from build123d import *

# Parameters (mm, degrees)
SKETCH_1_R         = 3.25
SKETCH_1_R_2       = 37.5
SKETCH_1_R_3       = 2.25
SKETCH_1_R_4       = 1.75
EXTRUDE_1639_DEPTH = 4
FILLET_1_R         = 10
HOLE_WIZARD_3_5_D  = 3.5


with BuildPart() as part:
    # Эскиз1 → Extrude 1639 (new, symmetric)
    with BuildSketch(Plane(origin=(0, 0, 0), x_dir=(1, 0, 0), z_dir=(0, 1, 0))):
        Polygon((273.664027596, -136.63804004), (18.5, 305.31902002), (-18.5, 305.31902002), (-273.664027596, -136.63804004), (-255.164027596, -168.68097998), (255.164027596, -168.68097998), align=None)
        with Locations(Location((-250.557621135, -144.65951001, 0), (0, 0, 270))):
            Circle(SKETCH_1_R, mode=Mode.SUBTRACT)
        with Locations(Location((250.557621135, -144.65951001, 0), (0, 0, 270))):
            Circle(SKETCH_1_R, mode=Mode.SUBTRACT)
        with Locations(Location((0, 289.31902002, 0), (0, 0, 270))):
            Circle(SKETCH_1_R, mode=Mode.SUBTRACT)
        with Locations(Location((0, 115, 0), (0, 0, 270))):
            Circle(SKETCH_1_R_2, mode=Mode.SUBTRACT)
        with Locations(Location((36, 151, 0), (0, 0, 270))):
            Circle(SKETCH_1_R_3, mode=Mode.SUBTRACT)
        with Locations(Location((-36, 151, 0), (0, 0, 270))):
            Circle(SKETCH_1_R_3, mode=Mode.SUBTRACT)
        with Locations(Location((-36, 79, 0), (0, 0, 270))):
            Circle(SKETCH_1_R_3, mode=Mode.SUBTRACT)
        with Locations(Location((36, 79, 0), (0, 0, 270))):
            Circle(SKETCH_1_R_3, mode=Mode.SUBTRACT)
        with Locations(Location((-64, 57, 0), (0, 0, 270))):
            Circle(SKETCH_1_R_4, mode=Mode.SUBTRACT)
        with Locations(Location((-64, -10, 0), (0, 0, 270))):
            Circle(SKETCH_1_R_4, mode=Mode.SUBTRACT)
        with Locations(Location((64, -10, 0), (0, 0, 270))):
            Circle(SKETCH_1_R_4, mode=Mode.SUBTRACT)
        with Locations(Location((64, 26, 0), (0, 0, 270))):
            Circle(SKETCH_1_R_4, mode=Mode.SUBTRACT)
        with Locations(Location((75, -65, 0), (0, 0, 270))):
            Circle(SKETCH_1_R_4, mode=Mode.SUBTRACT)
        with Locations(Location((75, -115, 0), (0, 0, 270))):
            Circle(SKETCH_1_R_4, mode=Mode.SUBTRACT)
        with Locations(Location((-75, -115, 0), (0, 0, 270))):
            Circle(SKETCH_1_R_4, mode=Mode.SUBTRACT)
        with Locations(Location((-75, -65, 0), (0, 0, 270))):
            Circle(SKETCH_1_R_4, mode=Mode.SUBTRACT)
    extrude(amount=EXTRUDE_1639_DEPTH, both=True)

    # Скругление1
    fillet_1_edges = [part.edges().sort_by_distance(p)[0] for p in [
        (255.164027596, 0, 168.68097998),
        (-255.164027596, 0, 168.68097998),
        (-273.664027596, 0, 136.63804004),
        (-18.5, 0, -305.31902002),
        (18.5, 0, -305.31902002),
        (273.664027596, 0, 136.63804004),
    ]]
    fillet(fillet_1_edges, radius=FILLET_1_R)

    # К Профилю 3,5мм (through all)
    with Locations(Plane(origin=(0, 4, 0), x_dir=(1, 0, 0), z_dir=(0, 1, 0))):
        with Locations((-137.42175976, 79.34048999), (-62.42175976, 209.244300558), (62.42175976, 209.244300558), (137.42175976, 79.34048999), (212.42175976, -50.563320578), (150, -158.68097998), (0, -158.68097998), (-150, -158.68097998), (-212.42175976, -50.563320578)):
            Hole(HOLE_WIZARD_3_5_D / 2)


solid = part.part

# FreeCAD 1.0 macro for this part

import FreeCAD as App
import Part
import Sketcher
from FreeCAD import Vector
Q = App.Units.Quantity


def edges_at(feature, points):
    """Names of the edges that pass closest to the given points."""
    edges = feature.Shape.Edges
    near = lambda p: min(range(len(edges)), key=lambda i: edges[i].distToShape(Part.Vertex(*p))[0])
    return sorted({f"Edge{near(p) + 1}" for p in points})


def add_polygon(sketch, points):
    """Adds a closed chain of lines whose ends are joined by coincident constraints."""
    first, n = sketch.GeometryCount, len(points)
    for a, b in zip(points, points[1:] + points[:1]):
        sketch.addGeometry(Part.LineSegment(App.Vector(*a, 0), App.Vector(*b, 0)), False)
    for i in range(n):
        sketch.addConstraint(Sketcher.Constraint("Coincident", first + i, 2, first + (i + 1) % n, 1))

doc = App.newDocument("Part")
body = doc.addObject("PartDesign::Body", "Body")

# Sketch on XZ plane
sketch1 = body.newObject("Sketcher::SketchObject", "Sketch")
sketch1.AttachmentSupport = (doc.getObject("XZ_Plane"), [""])
sketch1.MapMode = "FlatFace"
add_polygon(sketch1, [(273.7, 136.6), (18.5, -305.3), (-18.5, -305.3), (-273.7, 136.6), (-255.2, 168.7), (255.2, 168.7)])  # lines 0-5
sketch1.addGeometry(Part.Circle(Vector(-250.6, 144.7, 0), Vector(0, 0, 1), 3.2), False)  # 6
sketch1.addGeometry(Part.Circle(Vector(-75, 115, 0), Vector(0, 0, 1), 1.8), False)  # 7
sketch1.addGeometry(Part.Circle(Vector(-75, 65, 0), Vector(0, 0, 1), 1.8), False)  # 8
sketch1.addGeometry(Part.Circle(Vector(-64, 10, 0), Vector(0, 0, 1), 1.8), False)  # 9
sketch1.addGeometry(Part.Circle(Vector(-64, -57, 0), Vector(0, 0, 1), 1.8), False)  # 10
sketch1.addGeometry(Part.Circle(Vector(75, 115, 0), Vector(0, 0, 1), 1.8), False)  # 11
sketch1.addGeometry(Part.Circle(Vector(75, 65, 0), Vector(0, 0, 1), 1.8), False)  # 12
sketch1.addGeometry(Part.Circle(Vector(250.6, 144.7, 0), Vector(0, 0, 1), 3.2), False)  # 13
sketch1.addGeometry(Part.Circle(Vector(64, 10, 0), Vector(0, 0, 1), 1.8), False)  # 14
sketch1.addGeometry(Part.Circle(Vector(64, -26, 0), Vector(0, 0, 1), 1.8), False)  # 15
sketch1.addGeometry(Part.Circle(Vector(-36, -79, 0), Vector(0, 0, 1), 2.2), False)  # 16
sketch1.addGeometry(Part.Circle(Vector(0, -115, 0), Vector(0, 0, 1), 37.5), False)  # 17
sketch1.addGeometry(Part.Circle(Vector(-36, -151, 0), Vector(0, 0, 1), 2.2), False)  # 18
sketch1.addGeometry(Part.Circle(Vector(0, -289.3, 0), Vector(0, 0, 1), 3.2), False)  # 19
sketch1.addGeometry(Part.Circle(Vector(36, -79, 0), Vector(0, 0, 1), 2.2), False)  # 20
sketch1.addGeometry(Part.Circle(Vector(36, -151, 0), Vector(0, 0, 1), 2.2), False)  # 21
sketch1.addConstraint([
    Sketcher.Constraint("Horizontal", 1),
    Sketcher.Constraint("Horizontal", 4),
    Sketcher.Constraint("Equal", 7, 8),
    Sketcher.Constraint("Equal", 8, 9),
    Sketcher.Constraint("Equal", 9, 10),
    Sketcher.Constraint("Equal", 10, 11),
    Sketcher.Constraint("Equal", 11, 12),
    Sketcher.Constraint("Equal", 6, 13),
    Sketcher.Constraint("Equal", 12, 14),
    Sketcher.Constraint("Equal", 14, 15),
    Sketcher.Constraint("Equal", 16, 18),
    Sketcher.Constraint("Equal", 13, 19),
    Sketcher.Constraint("Equal", 18, 20),
    Sketcher.Constraint("Equal", 20, 21),
    Sketcher.Constraint("Symmetric", 7, 3, 11, 3, -2),
    Sketcher.Constraint("Symmetric", 8, 3, 12, 3, -2),
    Sketcher.Constraint("Symmetric", 6, 3, 13, 3, -2),
    Sketcher.Constraint("Symmetric", 9, 3, 14, 3, -2),
    Sketcher.Constraint("Symmetric", 16, 3, 20, 3, -2),
    Sketcher.Constraint("Symmetric", 18, 3, 21, 3, -2),
    Sketcher.Constraint("Symmetric", 2, 2, 5, 2, -2),
    Sketcher.Constraint("PointOnObject", 17, 3, -2),
    Sketcher.Constraint("PointOnObject", 19, 3, -2),
    Sketcher.Constraint("Parallel", 0, 3),
    Sketcher.Constraint("Parallel", 2, 5),
    Sketcher.Constraint("Vertical", 7, 3, 8, 3),
    Sketcher.Constraint("Vertical", 9, 3, 10, 3),
    Sketcher.Constraint("Vertical", 14, 3, 15, 3),
    Sketcher.Constraint("Vertical", 16, 3, 18, 3),
    Sketcher.Constraint("Equal", 0, 2),
    Sketcher.Constraint("Diameter", 17, Q("75 mm")),
    Sketcher.Constraint("Diameter", 6, Q("6.5 mm")),
    Sketcher.Constraint("Diameter", 7, Q("3.5 mm")),
    Sketcher.Constraint("Diameter", 16, Q("4.5 mm")),
    Sketcher.Constraint("DistanceX", 1, 2, 1, 1, Q("37 mm")),
    Sketcher.Constraint("Angle", 0, Q("-120 deg")),
    Sketcher.Constraint("Distance", 3, Q("37 mm")),
    Sketcher.Constraint("DistanceX", 7, 3, -1, 1, Q("75 mm")),
    Sketcher.Constraint("DistanceY", -1, 1, 7, 3, Q("115 mm")),
    Sketcher.Constraint("DistanceY", -1, 1, 8, 3, Q("65 mm")),
    Sketcher.Constraint("DistanceX", 9, 3, -1, 1, Q("64 mm")),
    Sketcher.Constraint("DistanceY", -1, 1, 9, 3, Q("10 mm")),
    Sketcher.Constraint("DistanceY", 10, 3, -1, 1, Q("57 mm")),
    Sketcher.Constraint("DistanceY", 15, 3, -1, 1, Q("26 mm")),
    Sketcher.Constraint("DistanceX", 16, 3, -1, 1, Q("36 mm")),
    Sketcher.Constraint("DistanceY", 16, 3, -1, 1, Q("79 mm")),
    Sketcher.Constraint("DistanceY", 17, 3, -1, 1, Q("115 mm")),
    Sketcher.Constraint("DistanceY", 18, 3, -1, 1, Q("151 mm")),
    Sketcher.Constraint("DistanceY", 0, 2, 19, 3, Q("16 mm")),
    Sketcher.Constraint("DistanceX", 4, 1, 4, 2, Q("510.328055 mm")),
    Sketcher.Constraint("DistanceX", 6, 3, -1, 1, Q("250.557621 mm")),
    Sketcher.Constraint("DistanceY", -1, 1, 6, 3, Q("144.65951 mm")),
    Sketcher.Constraint("DistanceY", 19, 3, -1, 1, Q("289.31902 mm")),
])
pad1 = body.newObject("PartDesign::Pad", "Pad")
pad1.Profile = sketch1
pad1.Length = 8
pad1.Midplane = True
doc.recompute()

fillet = body.newObject("PartDesign::Fillet", "Fillet")
fillet.Base = (pad1, edges_at(pad1, [
    (255.164, 0, 168.681),
    (-255.164, 0, 168.681),
    (-273.664, 0, 136.638),
    (-18.5, 0, -305.319),
    (18.5, 0, -305.319),
    (273.664, 0, 136.638),
]))
fillet.Radius = 10

# Sketch on XZ plane
sketch2 = body.newObject("Sketcher::SketchObject", "Sketch001")
sketch2.AttachmentSupport = (doc.getObject("XZ_Plane"), [""])
sketch2.MapMode = "FlatFace"
sketch2.AttachmentOffset = App.Placement(Vector(0, 0, -4), App.Rotation())
sketch2.addGeometry([
    Part.Circle(Vector(-137.4, -79.3, 0), Vector(0, 0, 1), 1.8),  # 0
    Part.Circle(Vector(-62.4, -209.2, 0), Vector(0, 0, 1), 1.8),  # 1
    Part.Circle(Vector(62.4, -209.2, 0), Vector(0, 0, 1), 1.8),  # 2
    Part.Circle(Vector(137.4, -79.3, 0), Vector(0, 0, 1), 1.8),  # 3
    Part.Circle(Vector(212.4, 50.6, 0), Vector(0, 0, 1), 1.8),  # 4
    Part.Circle(Vector(150, 158.7, 0), Vector(0, 0, 1), 1.8),  # 5
    Part.Circle(Vector(0, 158.7, 0), Vector(0, 0, 1), 1.8),  # 6
    Part.Circle(Vector(-150, 158.7, 0), Vector(0, 0, 1), 1.8),  # 7
    Part.Circle(Vector(-212.4, 50.6, 0), Vector(0, 0, 1), 1.8),  # 8
], False)
sketch2.addConstraint([
    Sketcher.Constraint("Equal", 0, 1),
    Sketcher.Constraint("Equal", 1, 2),
    Sketcher.Constraint("Equal", 2, 3),
    Sketcher.Constraint("Equal", 3, 4),
    Sketcher.Constraint("Equal", 4, 5),
    Sketcher.Constraint("Equal", 5, 6),
    Sketcher.Constraint("Equal", 6, 7),
    Sketcher.Constraint("Equal", 7, 8),
    Sketcher.Constraint("Symmetric", 1, 3, 2, 3, -2),
    Sketcher.Constraint("Symmetric", 0, 3, 3, 3, -2),
    Sketcher.Constraint("Symmetric", 5, 3, 7, 3, -2),
    Sketcher.Constraint("Symmetric", 4, 3, 8, 3, -2),
    Sketcher.Constraint("PointOnObject", 6, 3, -2),
    Sketcher.Constraint("Horizontal", 5, 3, 6, 3),
    Sketcher.Constraint("Diameter", 0, Q("3.5 mm")),
    Sketcher.Constraint("DistanceX", -1, 1, 5, 3, Q("150 mm")),
    Sketcher.Constraint("DistanceX", 0, 3, 1, 3, Q("75 mm")),
    Sketcher.Constraint("DistanceX", 3, 3, 4, 3, Q("75 mm")),
    Sketcher.Constraint("DistanceY", 1, 3, -1, 1, Q("209.244301 mm")),
    Sketcher.Constraint("DistanceX", 0, 3, -1, 1, Q("137.42176 mm")),
    Sketcher.Constraint("DistanceY", 0, 3, -1, 1, Q("79.34049 mm")),
    Sketcher.Constraint("DistanceY", -1, 1, 4, 3, Q("50.563321 mm")),
    Sketcher.Constraint("DistanceY", -1, 1, 5, 3, Q("158.68098 mm")),
])
doc.recompute()
hole = body.newObject("PartDesign::Hole", "Hole")
hole.Profile = sketch2
hole.ThreadType = "None"
hole.Diameter = 3.5
hole.DepthType = "ThroughAll"
hole.Reversed = True

doc.recompute()
